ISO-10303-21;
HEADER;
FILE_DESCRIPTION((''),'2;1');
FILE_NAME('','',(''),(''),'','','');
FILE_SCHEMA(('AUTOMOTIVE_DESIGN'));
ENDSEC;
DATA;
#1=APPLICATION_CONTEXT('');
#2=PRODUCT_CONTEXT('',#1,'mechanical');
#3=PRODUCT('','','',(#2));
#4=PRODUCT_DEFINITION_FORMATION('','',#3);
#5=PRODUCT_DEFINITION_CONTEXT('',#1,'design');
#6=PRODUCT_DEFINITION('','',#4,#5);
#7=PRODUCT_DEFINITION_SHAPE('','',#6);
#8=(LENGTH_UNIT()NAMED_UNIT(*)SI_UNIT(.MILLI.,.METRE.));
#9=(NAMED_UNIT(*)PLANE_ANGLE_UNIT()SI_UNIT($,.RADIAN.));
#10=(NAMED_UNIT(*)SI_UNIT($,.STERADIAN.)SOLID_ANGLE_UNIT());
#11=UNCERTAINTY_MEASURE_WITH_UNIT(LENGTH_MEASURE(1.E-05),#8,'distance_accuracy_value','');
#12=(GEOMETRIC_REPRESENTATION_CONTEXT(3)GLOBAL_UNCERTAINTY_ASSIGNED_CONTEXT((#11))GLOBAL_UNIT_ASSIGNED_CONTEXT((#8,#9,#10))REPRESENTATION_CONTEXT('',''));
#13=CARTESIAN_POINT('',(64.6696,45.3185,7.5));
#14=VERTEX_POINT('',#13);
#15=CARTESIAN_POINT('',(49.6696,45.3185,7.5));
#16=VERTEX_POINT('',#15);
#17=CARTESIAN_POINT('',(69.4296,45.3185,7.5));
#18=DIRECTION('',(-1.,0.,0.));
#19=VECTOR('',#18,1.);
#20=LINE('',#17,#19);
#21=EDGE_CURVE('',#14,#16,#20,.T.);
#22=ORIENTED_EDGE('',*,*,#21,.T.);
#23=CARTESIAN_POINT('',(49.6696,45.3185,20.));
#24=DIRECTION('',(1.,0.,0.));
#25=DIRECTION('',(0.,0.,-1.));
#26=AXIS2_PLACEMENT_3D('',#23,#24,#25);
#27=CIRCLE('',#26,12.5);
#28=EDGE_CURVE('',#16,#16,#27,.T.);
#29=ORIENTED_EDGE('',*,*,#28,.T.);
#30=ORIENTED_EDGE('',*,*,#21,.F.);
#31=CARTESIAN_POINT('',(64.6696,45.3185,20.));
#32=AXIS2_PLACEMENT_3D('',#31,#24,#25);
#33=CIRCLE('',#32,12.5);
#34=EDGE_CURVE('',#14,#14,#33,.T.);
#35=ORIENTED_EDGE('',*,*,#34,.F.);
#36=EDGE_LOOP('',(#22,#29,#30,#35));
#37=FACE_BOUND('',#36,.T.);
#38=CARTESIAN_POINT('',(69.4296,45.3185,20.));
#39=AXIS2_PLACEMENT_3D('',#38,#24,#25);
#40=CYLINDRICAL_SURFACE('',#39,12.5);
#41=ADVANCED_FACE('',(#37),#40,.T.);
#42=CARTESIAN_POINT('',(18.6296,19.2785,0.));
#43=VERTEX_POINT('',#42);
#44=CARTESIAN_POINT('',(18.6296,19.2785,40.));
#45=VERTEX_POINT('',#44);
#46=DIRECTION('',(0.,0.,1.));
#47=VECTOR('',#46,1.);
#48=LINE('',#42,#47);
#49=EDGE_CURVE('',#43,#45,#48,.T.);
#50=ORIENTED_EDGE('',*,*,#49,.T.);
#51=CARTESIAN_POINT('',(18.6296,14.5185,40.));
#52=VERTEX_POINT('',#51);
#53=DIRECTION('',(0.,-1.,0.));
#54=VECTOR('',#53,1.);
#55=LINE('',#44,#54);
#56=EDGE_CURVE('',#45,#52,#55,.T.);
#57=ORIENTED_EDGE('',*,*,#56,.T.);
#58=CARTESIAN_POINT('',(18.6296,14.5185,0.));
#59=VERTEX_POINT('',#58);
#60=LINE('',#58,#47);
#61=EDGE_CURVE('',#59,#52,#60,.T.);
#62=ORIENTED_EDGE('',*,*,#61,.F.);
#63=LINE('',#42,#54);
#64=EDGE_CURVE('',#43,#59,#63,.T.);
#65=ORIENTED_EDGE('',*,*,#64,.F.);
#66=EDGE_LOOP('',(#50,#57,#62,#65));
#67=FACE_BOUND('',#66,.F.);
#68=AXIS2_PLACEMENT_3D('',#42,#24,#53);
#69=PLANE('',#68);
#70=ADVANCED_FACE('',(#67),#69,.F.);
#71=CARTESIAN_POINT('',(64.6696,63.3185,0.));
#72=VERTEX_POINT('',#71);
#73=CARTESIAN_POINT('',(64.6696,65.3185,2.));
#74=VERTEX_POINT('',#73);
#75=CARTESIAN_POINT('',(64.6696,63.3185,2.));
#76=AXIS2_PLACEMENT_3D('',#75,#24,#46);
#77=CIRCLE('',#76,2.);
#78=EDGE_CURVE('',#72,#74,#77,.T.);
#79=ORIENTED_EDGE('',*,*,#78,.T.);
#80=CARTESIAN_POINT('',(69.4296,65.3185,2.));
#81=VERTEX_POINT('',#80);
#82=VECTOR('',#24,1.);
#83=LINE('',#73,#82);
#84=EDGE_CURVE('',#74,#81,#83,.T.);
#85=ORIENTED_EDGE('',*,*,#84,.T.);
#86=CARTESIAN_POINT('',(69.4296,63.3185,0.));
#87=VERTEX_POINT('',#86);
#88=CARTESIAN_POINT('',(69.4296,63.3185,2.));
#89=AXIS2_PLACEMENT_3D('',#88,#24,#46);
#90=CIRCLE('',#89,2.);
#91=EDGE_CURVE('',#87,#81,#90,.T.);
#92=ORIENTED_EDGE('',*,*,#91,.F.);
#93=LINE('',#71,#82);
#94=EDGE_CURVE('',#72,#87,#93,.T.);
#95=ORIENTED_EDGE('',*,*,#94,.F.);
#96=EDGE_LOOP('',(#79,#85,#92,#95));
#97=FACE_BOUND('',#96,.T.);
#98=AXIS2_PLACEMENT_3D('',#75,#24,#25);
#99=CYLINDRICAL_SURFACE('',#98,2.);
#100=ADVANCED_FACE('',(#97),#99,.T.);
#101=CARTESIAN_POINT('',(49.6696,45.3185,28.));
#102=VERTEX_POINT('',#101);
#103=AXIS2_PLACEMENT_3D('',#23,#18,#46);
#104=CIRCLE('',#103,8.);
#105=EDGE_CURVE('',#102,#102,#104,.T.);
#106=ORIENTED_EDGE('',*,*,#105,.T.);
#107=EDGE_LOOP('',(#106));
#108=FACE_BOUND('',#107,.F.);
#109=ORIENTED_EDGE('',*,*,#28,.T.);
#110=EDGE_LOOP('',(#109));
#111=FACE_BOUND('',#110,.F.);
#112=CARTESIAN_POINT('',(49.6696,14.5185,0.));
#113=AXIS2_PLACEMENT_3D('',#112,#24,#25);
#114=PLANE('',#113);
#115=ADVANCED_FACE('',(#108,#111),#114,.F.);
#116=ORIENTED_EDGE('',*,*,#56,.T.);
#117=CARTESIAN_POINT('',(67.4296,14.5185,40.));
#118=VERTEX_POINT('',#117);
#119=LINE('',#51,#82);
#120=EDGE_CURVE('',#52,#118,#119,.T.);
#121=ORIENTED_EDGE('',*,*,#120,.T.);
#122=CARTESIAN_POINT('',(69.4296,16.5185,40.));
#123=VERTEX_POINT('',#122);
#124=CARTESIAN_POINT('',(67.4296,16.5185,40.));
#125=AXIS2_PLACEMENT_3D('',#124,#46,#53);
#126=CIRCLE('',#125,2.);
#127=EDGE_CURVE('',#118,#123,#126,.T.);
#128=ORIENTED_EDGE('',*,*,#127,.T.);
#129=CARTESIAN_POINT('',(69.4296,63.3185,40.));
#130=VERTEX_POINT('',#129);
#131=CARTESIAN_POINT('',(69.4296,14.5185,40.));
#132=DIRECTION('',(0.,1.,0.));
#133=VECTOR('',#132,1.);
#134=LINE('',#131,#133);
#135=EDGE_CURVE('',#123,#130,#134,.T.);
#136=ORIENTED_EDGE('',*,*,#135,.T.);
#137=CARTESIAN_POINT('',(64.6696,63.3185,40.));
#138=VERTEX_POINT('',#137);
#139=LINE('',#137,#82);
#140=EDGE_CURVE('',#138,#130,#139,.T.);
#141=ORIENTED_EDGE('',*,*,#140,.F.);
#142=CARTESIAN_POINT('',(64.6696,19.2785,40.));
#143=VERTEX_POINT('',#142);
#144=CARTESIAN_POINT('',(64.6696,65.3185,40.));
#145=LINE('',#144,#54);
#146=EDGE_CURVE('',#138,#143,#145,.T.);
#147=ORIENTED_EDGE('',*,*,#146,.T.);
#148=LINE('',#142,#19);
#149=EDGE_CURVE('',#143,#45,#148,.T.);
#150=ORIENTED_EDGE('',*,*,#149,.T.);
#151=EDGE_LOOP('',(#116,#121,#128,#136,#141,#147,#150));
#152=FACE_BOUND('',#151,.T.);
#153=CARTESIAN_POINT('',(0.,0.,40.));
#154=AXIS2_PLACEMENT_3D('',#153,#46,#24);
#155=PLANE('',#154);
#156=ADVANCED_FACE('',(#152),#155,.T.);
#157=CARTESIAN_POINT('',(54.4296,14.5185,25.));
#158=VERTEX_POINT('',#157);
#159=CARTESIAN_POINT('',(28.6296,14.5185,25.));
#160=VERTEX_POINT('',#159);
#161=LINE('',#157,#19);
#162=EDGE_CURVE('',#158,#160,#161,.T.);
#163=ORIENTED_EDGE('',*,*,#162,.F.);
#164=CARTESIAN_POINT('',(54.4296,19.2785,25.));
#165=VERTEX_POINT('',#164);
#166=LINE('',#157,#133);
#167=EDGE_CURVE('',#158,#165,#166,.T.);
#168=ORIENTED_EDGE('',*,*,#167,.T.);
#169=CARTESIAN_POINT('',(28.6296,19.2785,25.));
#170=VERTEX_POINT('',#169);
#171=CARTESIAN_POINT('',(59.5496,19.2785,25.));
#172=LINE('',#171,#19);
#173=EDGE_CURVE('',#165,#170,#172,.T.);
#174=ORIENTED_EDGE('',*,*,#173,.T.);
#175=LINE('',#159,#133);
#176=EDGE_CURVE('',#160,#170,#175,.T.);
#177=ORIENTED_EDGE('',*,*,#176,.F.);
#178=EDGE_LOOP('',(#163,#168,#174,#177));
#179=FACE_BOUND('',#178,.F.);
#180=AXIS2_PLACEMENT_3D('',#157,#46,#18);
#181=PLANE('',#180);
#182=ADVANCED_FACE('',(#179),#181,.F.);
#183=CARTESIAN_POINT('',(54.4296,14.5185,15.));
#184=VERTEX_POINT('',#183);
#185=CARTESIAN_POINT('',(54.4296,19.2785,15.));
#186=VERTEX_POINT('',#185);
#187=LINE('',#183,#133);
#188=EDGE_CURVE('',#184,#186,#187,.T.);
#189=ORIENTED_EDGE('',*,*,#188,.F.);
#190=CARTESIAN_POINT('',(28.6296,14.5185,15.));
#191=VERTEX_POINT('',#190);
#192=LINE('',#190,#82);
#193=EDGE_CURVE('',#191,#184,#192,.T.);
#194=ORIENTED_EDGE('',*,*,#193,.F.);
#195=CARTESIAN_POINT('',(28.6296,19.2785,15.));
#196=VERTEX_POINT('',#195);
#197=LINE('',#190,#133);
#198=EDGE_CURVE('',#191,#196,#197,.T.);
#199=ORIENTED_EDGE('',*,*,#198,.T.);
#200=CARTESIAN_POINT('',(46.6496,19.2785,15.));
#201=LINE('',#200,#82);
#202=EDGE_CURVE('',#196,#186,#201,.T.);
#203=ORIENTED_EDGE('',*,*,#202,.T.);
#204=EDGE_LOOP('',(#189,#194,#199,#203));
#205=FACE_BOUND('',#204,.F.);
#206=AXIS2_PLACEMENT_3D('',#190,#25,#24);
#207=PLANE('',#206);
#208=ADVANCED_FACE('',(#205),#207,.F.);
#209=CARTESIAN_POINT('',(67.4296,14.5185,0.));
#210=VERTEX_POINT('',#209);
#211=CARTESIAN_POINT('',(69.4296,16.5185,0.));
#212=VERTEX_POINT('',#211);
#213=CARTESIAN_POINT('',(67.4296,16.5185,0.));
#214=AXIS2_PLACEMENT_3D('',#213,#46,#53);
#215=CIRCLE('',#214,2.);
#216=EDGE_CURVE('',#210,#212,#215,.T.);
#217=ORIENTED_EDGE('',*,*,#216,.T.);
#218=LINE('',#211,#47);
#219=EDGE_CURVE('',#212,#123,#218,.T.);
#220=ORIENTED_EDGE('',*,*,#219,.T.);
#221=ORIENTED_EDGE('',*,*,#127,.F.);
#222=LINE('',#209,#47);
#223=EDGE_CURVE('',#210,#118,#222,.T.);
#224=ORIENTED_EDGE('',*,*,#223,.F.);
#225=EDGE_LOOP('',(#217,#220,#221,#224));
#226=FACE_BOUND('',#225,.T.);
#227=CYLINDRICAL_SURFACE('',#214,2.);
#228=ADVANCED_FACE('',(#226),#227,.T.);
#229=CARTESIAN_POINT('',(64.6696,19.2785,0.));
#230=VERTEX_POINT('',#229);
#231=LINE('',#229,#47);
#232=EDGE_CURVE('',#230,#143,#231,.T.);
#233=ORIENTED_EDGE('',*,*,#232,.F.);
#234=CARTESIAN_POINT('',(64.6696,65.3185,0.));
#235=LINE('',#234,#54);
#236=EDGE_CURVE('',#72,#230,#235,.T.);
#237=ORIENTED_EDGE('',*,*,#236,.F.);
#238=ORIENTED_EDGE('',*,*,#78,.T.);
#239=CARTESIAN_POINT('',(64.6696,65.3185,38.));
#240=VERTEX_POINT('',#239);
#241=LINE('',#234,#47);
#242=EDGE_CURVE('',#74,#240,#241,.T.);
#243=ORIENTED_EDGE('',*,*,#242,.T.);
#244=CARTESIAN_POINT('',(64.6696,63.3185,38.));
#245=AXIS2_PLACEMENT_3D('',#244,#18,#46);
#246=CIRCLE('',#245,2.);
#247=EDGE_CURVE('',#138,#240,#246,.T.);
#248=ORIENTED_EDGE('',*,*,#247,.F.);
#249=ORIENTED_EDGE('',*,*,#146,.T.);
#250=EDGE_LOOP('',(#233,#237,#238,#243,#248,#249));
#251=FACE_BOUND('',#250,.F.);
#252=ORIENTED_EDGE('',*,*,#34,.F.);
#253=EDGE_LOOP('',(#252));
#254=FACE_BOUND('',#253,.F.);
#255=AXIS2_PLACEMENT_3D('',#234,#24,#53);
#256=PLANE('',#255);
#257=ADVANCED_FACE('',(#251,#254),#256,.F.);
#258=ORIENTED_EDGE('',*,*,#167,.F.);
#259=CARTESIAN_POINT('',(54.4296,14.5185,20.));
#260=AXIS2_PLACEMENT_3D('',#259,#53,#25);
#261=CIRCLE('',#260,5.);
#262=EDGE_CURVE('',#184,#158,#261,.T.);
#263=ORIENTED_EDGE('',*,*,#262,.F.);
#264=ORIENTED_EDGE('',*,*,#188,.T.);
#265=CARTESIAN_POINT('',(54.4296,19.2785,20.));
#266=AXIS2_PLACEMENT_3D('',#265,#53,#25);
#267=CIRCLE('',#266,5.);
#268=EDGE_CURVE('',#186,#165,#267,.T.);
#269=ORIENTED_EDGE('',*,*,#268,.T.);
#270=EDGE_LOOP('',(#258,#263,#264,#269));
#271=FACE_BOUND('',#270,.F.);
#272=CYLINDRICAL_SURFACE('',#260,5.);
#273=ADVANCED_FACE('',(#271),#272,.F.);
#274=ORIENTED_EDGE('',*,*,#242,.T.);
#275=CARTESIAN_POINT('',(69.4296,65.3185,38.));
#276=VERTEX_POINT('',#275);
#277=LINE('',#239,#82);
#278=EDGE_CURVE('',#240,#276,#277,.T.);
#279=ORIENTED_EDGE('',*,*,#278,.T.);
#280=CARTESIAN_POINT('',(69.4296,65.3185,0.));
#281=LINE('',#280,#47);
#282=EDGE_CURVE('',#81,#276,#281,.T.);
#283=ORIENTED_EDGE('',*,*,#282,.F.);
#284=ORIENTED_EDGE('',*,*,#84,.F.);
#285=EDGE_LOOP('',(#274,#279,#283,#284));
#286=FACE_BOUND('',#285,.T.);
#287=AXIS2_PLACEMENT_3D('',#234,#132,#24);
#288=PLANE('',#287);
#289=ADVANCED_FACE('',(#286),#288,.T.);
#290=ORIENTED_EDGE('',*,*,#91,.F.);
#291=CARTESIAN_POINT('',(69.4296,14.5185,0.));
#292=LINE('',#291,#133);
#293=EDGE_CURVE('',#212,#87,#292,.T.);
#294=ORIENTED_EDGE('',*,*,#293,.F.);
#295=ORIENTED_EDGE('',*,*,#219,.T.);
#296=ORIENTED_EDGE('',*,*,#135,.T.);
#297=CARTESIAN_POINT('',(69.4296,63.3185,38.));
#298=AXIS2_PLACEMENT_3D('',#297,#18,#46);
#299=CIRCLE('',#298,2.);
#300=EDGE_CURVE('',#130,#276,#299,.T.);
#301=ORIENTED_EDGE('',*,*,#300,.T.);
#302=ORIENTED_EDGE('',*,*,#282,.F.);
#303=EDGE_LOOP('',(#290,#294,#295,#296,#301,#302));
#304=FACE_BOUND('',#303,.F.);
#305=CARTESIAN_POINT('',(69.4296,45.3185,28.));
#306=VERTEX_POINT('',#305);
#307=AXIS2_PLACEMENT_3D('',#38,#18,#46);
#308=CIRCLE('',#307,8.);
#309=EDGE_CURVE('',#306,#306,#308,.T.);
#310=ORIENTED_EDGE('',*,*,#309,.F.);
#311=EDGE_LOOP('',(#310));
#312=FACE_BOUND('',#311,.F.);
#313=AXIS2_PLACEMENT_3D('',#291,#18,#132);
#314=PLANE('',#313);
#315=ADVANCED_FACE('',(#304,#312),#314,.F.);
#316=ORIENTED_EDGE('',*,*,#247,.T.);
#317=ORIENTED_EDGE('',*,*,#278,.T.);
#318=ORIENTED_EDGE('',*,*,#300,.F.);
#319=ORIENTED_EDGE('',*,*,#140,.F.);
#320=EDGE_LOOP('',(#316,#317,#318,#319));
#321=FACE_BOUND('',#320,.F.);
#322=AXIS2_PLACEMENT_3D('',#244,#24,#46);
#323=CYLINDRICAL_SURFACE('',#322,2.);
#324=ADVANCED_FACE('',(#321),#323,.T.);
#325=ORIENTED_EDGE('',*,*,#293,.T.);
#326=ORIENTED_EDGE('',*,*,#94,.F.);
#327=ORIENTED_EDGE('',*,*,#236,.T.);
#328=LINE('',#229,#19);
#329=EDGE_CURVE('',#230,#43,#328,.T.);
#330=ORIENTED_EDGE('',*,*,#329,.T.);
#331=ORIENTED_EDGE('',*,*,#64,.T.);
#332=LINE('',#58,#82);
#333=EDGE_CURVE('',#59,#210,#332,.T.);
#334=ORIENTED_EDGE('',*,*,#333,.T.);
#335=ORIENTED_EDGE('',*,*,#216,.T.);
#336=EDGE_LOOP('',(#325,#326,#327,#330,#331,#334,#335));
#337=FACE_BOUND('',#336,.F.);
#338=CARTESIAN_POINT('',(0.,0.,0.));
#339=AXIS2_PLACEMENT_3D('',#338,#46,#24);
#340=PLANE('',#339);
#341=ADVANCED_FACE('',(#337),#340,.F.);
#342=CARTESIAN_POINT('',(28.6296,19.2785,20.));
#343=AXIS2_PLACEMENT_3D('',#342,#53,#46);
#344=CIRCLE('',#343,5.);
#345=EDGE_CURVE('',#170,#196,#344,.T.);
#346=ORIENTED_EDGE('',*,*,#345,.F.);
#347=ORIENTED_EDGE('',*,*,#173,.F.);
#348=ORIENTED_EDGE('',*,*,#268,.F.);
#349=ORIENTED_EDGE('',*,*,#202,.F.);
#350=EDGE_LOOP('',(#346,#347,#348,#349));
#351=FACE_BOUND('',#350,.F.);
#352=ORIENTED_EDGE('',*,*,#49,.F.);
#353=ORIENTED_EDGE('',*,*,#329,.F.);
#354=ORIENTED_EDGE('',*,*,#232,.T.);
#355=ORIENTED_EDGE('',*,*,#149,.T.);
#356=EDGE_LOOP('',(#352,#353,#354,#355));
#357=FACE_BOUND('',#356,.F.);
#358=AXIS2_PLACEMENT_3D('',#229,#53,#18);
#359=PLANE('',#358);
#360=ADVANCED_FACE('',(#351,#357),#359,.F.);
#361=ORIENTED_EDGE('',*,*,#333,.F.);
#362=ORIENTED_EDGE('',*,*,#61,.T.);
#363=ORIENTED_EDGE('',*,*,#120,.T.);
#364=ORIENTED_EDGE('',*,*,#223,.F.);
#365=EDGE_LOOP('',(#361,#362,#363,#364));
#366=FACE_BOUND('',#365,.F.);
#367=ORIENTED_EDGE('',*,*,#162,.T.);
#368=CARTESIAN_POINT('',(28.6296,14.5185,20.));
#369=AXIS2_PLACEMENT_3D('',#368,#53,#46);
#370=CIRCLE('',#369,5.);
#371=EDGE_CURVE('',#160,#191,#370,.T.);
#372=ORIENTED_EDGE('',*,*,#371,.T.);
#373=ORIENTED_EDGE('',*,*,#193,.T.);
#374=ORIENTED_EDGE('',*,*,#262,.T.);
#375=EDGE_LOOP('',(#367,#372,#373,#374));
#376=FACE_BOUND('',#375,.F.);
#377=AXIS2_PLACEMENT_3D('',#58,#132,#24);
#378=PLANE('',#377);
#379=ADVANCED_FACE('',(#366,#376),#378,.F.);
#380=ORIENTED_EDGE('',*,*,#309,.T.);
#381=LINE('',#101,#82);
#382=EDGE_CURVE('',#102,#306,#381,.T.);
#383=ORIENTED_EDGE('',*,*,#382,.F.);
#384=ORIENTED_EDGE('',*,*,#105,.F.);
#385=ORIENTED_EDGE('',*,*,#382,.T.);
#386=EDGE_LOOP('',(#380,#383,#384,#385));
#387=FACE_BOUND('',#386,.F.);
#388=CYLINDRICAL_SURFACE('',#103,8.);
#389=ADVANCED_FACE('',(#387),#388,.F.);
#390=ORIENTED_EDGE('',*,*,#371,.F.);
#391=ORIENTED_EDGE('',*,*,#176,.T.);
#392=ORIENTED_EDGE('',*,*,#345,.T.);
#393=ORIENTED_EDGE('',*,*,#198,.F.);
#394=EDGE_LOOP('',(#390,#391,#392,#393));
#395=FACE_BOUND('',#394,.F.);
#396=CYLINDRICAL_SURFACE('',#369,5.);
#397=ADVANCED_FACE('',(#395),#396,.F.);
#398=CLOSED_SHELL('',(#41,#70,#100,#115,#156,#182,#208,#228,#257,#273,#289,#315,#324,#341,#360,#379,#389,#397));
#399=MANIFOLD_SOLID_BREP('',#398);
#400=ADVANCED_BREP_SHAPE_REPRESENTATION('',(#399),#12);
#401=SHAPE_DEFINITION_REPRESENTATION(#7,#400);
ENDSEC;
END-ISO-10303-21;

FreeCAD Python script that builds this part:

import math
import FreeCAD as App
import Part
import Sketcher

V = App.Vector
Q = App.Units.Quantity


def edges_at(feature, points):
    """Names of the edges that pass closest to the given points."""
    edges = feature.Shape.Edges
    near = lambda p: min(range(len(edges)), key=lambda i: edges[i].distToShape(Part.Vertex(*p))[0])
    return sorted({f"Edge{near(p) + 1}" for p in points})

doc = App.newDocument("Part")
params = doc.addObject("Spreadsheet::Sheet", "Params")
for row, (alias, value) in enumerate([
    ("sketch1_width", "50.8 mm"),
    ("sketch1_width2", "4.76 mm"),
    ("pad1_length", "40 mm"),
    ("sketch2_diameter", "25 mm"),
    ("pad2_length", "19.76 mm"),
    ("sketch3_diameter", "16 mm"),
    ("pocket1_length", "19.76 mm"),
    ("sketch4_radius", "5 mm"),
    ("sketch4_width", "25.8 mm"),
    ("pocket2_length", "6 mm"),
    ("fillet_radius", "2 mm"),
    ("fillet2_radius", "2 mm"),
], start=1):
    params.set(f"A{row}", alias)
    params.set(f"B{row}", "=" + value)
    params.setAlias(f"B{row}", alias)

body = doc.addObject("PartDesign::Body", "Body")

# Sketch on XY plane
sketch1 = body.newObject("Sketcher::SketchObject", "Sketch")
sketch1.AttachmentSupport = (doc.getObject("XY_Plane"), [""])
sketch1.MapMode = "FlatFace"
sketch1.addGeometry(Part.LineSegment(V(18.6, 19.3, 0), V(18.6, 14.5, 0)), False)
sketch1.addGeometry(Part.LineSegment(V(18.6, 14.5, 0), V(69.4, 14.5, 0)), False)
sketch1.addGeometry(Part.LineSegment(V(69.4, 14.5, 0), V(69.4, 65.3, 0)), False)
sketch1.addGeometry(Part.LineSegment(V(69.4, 65.3, 0), V(64.7, 65.3, 0)), False)
sketch1.addGeometry(Part.LineSegment(V(64.7, 65.3, 0), V(64.7, 19.3, 0)), False)
sketch1.addGeometry(Part.LineSegment(V(64.7, 19.3, 0), V(18.6, 19.3, 0)), False)
sketch1.addConstraint(Sketcher.Constraint("Coincident", 0, 2, 1, 1))
sketch1.addConstraint(Sketcher.Constraint("Coincident", 1, 2, 2, 1))
sketch1.addConstraint(Sketcher.Constraint("Coincident", 2, 2, 3, 1))
sketch1.addConstraint(Sketcher.Constraint("Coincident", 3, 2, 4, 1))
sketch1.addConstraint(Sketcher.Constraint("Coincident", 4, 2, 5, 1))
sketch1.addConstraint(Sketcher.Constraint("Coincident", 5, 2, 0, 1))
sketch1.addConstraint(Sketcher.Constraint("Vertical", 0))
sketch1.addConstraint(Sketcher.Constraint("Horizontal", 1))
sketch1.addConstraint(Sketcher.Constraint("Vertical", 2))
sketch1.addConstraint(Sketcher.Constraint("Horizontal", 3))
sketch1.addConstraint(Sketcher.Constraint("Vertical", 4))
sketch1.addConstraint(Sketcher.Constraint("Horizontal", 5))
sketch1.addConstraint(Sketcher.Constraint("Equal", 3, 0))
sketch1.addConstraint(Sketcher.Constraint("Equal", 1, 2))
sketch1.addConstraint(Sketcher.Constraint("DistanceX", 1, 1, 1, 2, Q("50.8 mm")))
sketch1.addConstraint(Sketcher.Constraint("DistanceX", 3, 2, 3, 1, Q("4.76 mm")))
sketch1.addConstraint(Sketcher.Constraint("DistanceX", -1, 1, 0, 2, Q("18.6296 mm")))
sketch1.addConstraint(Sketcher.Constraint("DistanceY", -1, 1, 0, 2, Q("14.5185 mm")))
sketch1.setExpression("Constraints[14]", "Params.sketch1_width")
sketch1.setExpression("Constraints[15]", "Params.sketch1_width2")
pad1 = body.newObject("PartDesign::Pad", "Pad")
pad1.Profile = sketch1
pad1.setExpression("Length", "Params.pad1_length")

# Sketch on YZ plane
sketch2 = body.newObject("Sketcher::SketchObject", "Sketch001")
sketch2.AttachmentSupport = (doc.getObject("YZ_Plane"), [""])
sketch2.MapMode = "FlatFace"
sketch2.AttachmentOffset = App.Placement(V(0, 0, 69.4296), App.Rotation())
sketch2.addGeometry(Part.Circle(V(45, 20, 0), V(0, 0, 1), 12), False)
sketch2.addConstraint(Sketcher.Constraint("Diameter", 0, Q("25 mm")))
sketch2.addConstraint(Sketcher.Constraint("DistanceY", -1, 1, 0, 3, Q("20 mm")))
sketch2.addConstraint(Sketcher.Constraint("DistanceX", -1, 1, 0, 3, Q("45.3185 mm")))
sketch2.setExpression("Constraints[0]", "Params.sketch2_diameter")
pad2 = body.newObject("PartDesign::Pad", "Pad001")
pad2.Profile = sketch2
pad2.setExpression("Length", "Params.pad2_length")
pad2.Reversed = True

# Sketch on YZ plane
sketch3 = body.newObject("Sketcher::SketchObject", "Sketch002")
sketch3.AttachmentSupport = (doc.getObject("YZ_Plane"), [""])
sketch3.MapMode = "FlatFace"
sketch3.AttachmentOffset = App.Placement(V(0, 0, 49.6696), App.Rotation())
sketch3.addGeometry(Part.Circle(V(45, 20, 0), V(0, 0, 1), 8), False)
sketch3.addConstraint(Sketcher.Constraint("Diameter", 0, Q("16 mm")))
sketch3.addConstraint(Sketcher.Constraint("DistanceY", -1, 1, 0, 3, Q("20 mm")))
sketch3.addConstraint(Sketcher.Constraint("DistanceX", -1, 1, 0, 3, Q("45.3185 mm")))
sketch3.setExpression("Constraints[0]", "Params.sketch3_diameter")
pocket1 = body.newObject("PartDesign::Pocket", "Pocket")
pocket1.Profile = sketch3
pocket1.setExpression("Length", "Params.pocket1_length")
pocket1.Reversed = True

# Sketch on XZ plane
sketch4 = body.newObject("Sketcher::SketchObject", "Sketch003")
sketch4.AttachmentSupport = (doc.getObject("XZ_Plane"), [""])
sketch4.MapMode = "FlatFace"
sketch4.AttachmentOffset = App.Placement(V(0, 0, -14.5185), App.Rotation())
sketch4.addGeometry(Part.LineSegment(V(29, 15, 0), V(54, 15, 0)), False)
sketch4.addGeometry(Part.ArcOfCircle(Part.Circle(V(54, 20, 0), V(0, 0, 1), 5), math.radians(-90), math.radians(90)), False)
sketch4.addGeometry(Part.LineSegment(V(54, 25, 0), V(29, 25, 0)), False)
sketch4.addGeometry(Part.ArcOfCircle(Part.Circle(V(29, 20, 0), V(0, 0, 1), 5), math.radians(90), math.radians(270)), False)
sketch4.addConstraint(Sketcher.Constraint("Tangent", 0, 2, 1, 1))
sketch4.addConstraint(Sketcher.Constraint("Tangent", 1, 2, 2, 1))
sketch4.addConstraint(Sketcher.Constraint("Tangent", 2, 2, 3, 1))
sketch4.addConstraint(Sketcher.Constraint("Tangent", 3, 2, 0, 1))
sketch4.addConstraint(Sketcher.Constraint("Horizontal", 0))
sketch4.addConstraint(Sketcher.Constraint("Horizontal", 2))
sketch4.addConstraint(Sketcher.Constraint("Radius", 1, Q("5 mm")))
sketch4.addConstraint(Sketcher.Constraint("DistanceY", -1, 1, 1, 3, Q("20 mm")))
sketch4.addConstraint(Sketcher.Constraint("DistanceX", 0, 1, 0, 2, Q("25.8 mm")))
sketch4.addConstraint(Sketcher.Constraint("DistanceX", -1, 1, 1, 3, Q("54.4296 mm")))
sketch4.setExpression("Constraints[6]", "Params.sketch4_radius")
sketch4.setExpression("Constraints[8]", "Params.sketch4_width")
pocket2 = body.newObject("PartDesign::Pocket", "Pocket001")
pocket2.Profile = sketch4
pocket2.setExpression("Length", "Params.pocket2_length")
doc.recompute()

fillet = body.newObject("PartDesign::Fillet", "Fillet")
fillet.Base = (pocket2, edges_at(pocket2, [(69.43, 14.518, 20)]))
fillet.setExpression("Radius", "Params.fillet_radius")
doc.recompute()

fillet2 = body.newObject("PartDesign::Fillet", "Fillet001")
fillet2.Base = (fillet, edges_at(fillet, [(67.05, 65.319, 40), (67.05, 65.319, 0)]))
fillet2.setExpression("Radius", "Params.fillet2_radius")

doc.recompute()
